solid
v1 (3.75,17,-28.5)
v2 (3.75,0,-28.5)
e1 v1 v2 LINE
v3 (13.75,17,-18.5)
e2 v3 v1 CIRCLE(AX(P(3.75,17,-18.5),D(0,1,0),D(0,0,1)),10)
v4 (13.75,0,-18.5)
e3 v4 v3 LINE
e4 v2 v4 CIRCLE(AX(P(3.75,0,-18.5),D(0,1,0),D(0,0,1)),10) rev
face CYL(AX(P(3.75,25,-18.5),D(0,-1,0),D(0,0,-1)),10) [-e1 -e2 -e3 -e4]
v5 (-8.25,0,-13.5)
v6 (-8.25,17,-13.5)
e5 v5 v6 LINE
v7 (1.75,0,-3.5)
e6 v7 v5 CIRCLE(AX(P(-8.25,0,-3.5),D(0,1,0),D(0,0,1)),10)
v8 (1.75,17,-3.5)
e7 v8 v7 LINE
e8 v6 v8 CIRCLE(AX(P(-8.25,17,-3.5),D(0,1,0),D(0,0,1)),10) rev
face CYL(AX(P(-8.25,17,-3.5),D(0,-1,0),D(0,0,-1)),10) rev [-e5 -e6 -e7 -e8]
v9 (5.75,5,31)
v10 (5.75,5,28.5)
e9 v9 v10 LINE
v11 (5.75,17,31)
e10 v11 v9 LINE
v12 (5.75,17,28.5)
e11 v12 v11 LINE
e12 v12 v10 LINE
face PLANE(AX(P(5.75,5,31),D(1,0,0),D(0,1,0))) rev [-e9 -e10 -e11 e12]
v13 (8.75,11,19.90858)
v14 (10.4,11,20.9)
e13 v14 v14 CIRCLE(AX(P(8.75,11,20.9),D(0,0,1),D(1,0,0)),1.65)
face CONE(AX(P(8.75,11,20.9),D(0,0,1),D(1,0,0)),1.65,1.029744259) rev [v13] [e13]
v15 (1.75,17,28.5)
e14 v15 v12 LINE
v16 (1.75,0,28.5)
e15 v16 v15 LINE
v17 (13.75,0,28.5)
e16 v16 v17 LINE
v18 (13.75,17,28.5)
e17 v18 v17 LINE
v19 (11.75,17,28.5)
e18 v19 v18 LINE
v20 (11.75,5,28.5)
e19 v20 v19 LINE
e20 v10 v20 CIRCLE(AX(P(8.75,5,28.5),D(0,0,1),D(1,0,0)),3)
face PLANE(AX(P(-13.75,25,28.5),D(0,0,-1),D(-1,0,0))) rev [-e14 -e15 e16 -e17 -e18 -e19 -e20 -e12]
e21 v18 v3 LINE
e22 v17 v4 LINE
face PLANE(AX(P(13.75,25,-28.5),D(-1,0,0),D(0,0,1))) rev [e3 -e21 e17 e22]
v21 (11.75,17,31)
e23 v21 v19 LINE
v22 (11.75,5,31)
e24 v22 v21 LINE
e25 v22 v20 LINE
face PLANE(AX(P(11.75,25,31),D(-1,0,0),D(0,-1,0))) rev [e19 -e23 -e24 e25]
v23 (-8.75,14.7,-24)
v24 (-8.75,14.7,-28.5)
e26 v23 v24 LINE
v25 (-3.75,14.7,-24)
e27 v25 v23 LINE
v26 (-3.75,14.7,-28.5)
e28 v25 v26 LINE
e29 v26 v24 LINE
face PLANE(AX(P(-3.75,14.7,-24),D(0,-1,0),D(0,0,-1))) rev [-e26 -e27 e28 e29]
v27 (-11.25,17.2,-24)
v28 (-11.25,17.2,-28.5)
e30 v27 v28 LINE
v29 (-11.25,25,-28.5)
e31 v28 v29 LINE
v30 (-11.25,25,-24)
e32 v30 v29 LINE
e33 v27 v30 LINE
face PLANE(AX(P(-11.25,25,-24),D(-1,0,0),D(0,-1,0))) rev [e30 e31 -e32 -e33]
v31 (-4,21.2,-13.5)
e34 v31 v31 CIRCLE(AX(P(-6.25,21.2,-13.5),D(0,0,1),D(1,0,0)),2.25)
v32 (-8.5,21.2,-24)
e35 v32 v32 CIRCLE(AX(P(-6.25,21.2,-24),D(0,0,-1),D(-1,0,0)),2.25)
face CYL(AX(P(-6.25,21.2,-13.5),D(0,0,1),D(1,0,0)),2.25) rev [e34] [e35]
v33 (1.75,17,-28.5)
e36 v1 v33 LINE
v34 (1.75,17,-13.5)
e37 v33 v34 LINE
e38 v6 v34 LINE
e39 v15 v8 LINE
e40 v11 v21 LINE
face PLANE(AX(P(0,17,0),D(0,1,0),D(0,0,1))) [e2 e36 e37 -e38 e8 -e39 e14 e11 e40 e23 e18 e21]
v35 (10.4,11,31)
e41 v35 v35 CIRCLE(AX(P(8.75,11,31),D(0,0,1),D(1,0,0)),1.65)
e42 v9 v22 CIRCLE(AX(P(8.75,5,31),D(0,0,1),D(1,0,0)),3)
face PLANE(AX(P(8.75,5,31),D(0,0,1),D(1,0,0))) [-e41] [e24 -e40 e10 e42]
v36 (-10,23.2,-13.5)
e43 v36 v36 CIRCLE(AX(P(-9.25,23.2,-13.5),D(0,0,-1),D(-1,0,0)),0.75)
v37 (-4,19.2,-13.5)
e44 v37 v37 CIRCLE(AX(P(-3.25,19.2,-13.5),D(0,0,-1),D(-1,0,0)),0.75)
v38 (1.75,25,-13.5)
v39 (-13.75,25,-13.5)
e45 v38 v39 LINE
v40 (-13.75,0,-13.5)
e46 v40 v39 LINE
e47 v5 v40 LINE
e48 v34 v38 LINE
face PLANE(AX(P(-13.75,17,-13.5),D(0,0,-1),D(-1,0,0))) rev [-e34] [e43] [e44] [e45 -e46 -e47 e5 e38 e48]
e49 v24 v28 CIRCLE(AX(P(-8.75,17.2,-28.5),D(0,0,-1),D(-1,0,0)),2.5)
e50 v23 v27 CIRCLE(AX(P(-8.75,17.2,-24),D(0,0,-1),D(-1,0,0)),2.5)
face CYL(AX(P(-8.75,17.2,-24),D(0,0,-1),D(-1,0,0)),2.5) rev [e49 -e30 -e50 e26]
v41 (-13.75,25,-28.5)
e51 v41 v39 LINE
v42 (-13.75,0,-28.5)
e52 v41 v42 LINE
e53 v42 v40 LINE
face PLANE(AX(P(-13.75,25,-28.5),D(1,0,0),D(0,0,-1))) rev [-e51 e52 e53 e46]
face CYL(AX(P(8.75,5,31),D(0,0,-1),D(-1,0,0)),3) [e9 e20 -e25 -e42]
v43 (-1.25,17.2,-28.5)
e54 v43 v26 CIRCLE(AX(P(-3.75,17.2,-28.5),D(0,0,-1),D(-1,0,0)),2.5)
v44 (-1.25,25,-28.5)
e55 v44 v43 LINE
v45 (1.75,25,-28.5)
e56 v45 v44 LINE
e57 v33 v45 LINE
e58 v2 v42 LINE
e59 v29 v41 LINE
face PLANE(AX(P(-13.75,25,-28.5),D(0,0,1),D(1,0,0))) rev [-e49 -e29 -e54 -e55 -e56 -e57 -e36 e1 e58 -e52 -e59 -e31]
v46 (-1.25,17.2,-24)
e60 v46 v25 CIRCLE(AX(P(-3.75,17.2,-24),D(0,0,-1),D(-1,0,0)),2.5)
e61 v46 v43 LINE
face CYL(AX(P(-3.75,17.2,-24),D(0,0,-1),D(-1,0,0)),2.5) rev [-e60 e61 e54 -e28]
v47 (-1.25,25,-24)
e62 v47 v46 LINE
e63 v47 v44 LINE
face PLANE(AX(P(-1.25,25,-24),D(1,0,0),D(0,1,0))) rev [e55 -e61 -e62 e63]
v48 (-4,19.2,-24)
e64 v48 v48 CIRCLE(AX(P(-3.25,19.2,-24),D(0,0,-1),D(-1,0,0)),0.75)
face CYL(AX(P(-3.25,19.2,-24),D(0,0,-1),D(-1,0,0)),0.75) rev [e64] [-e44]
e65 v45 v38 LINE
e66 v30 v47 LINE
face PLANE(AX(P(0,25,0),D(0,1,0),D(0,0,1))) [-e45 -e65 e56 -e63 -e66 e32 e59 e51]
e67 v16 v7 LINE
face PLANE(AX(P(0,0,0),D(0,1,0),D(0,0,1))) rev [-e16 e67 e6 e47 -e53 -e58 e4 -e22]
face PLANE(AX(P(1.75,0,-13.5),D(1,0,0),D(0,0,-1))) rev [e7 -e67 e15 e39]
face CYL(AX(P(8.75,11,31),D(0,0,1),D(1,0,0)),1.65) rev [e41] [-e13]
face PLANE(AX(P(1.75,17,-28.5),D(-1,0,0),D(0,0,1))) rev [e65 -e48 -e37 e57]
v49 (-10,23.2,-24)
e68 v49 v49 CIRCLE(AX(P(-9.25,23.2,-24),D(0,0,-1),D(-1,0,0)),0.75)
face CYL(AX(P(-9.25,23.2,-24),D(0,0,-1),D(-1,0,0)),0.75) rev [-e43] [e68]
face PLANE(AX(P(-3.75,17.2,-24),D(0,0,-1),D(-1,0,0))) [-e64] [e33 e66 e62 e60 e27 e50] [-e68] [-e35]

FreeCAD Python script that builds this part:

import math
import FreeCAD as App
import Part
import Sketcher


def edges_at(feature, points):
    """Names of the edges that pass closest to the given points."""
    edges = feature.Shape.Edges
    near = lambda p: min(range(len(edges)), key=lambda i: edges[i].distToShape(Part.Vertex(*p))[0])
    return sorted({f"Edge{near(p) + 1}" for p in points})

doc = App.newDocument("Part")
body = doc.addObject("PartDesign::Body", "Body")

sketch1 = body.newObject("Sketcher::SketchObject", "Sketch")
sketch1.AttachmentSupport = (doc.getObject("XZ_Plane"), [""])
sketch1.MapMode = "FlatFace"
sketch1.addGeometry(Part.LineSegment(App.Vector(-14, -28, 0), App.Vector(-14, 28, 0)), False)
sketch1.addGeometry(Part.LineSegment(App.Vector(-14, 28, 0), App.Vector(14, 28, 0)), False)
sketch1.addGeometry(Part.LineSegment(App.Vector(14, 28, 0), App.Vector(14, -28, 0)), False)
sketch1.addGeometry(Part.LineSegment(App.Vector(14, -28, 0), App.Vector(-14, -28, 0)), False)
sketch1.addConstraint(Sketcher.Constraint("Coincident", 0, 2, 1, 1))
sketch1.addConstraint(Sketcher.Constraint("Coincident", 1, 2, 2, 1))
sketch1.addConstraint(Sketcher.Constraint("Coincident", 2, 2, 3, 1))
sketch1.addConstraint(Sketcher.Constraint("Coincident", 3, 2, 0, 1))
sketch1.addConstraint(Sketcher.Constraint("Vertical", 0))
sketch1.addConstraint(Sketcher.Constraint("Horizontal", 1))
sketch1.addConstraint(Sketcher.Constraint("Vertical", 2))
sketch1.addConstraint(Sketcher.Constraint("Horizontal", 3))
sketch1.addConstraint(Sketcher.Constraint("Symmetric", 0, 2, 2, 2, -1, 1))
sketch1.addConstraint(Sketcher.Constraint("DistanceY", 0, 1, 0, 2, 57.0))
sketch1.addConstraint(Sketcher.Constraint("DistanceX", 1, 1, 1, 2, 27.5))
pad1 = body.newObject("PartDesign::Pad", "Pad")
pad1.Profile = sketch1
pad1.Length = 25
pad1.Reversed = True

sketch2 = body.newObject("Sketcher::SketchObject", "Sketch001")
sketch2.AttachmentSupport = (doc.getObject("XY_Plane"), [""])
sketch2.MapMode = "FlatFace"
sketch2.AttachmentOffset = App.Placement(App.Vector(0, 0, 28.5), App.Rotation())
sketch2.addGeometry(Part.LineSegment(App.Vector(5.8, 25, 0), App.Vector(5.8, 5, 0)), False)
sketch2.addGeometry(Part.ArcOfCircle(Part.Circle(App.Vector(8.8, 5, 0), App.Vector(0, 0, 1), 3), math.radians(180), math.radians(360)), False)
sketch2.addGeometry(Part.LineSegment(App.Vector(11.8, 5, 0), App.Vector(11.8, 25, 0)), False)
sketch2.addGeometry(Part.LineSegment(App.Vector(11.8, 25, 0), App.Vector(5.8, 25, 0)), False)
sketch2.addConstraint(Sketcher.Constraint("Tangent", 0, 2, 1, 1))
sketch2.addConstraint(Sketcher.Constraint("Tangent", 1, 2, 2, 1))
sketch2.addConstraint(Sketcher.Constraint("Coincident", 2, 2, 3, 1))
sketch2.addConstraint(Sketcher.Constraint("Coincident", 3, 2, 0, 1))
sketch2.addConstraint(Sketcher.Constraint("Vertical", 0))
sketch2.addConstraint(Sketcher.Constraint("Vertical", 2))
sketch2.addConstraint(Sketcher.Constraint("Horizontal", 3))
sketch2.addConstraint(Sketcher.Constraint("Radius", 1, 3.0))
sketch2.addConstraint(Sketcher.Constraint("DistanceY", 0, 2, 0, 1, 20.0))
sketch2.addConstraint(Sketcher.Constraint("DistanceY", -1, 1, 1, 3, 5.0))
sketch2.addConstraint(Sketcher.Constraint("DistanceX", -1, 1, 1, 3, 8.75))
pad2 = body.newObject("PartDesign::Pad", "Pad001")
pad2.Profile = sketch2
pad2.Length = 2.5

sketch3 = body.newObject("Sketcher::SketchObject", "Sketch002")
sketch3.AttachmentSupport = (doc.getObject("XY_Plane"), [""])
sketch3.MapMode = "FlatFace"
sketch3.AttachmentOffset = App.Placement(App.Vector(0, 0, -28.5), App.Rotation())
sketch3.addGeometry(Part.LineSegment(App.Vector(-11.2, 25, 0), App.Vector(-1.2, 25, 0)), False)
sketch3.addGeometry(Part.LineSegment(App.Vector(-1.2, 25, 0), App.Vector(-1.2, 17.2, 0)), False)
sketch3.addGeometry(Part.ArcOfCircle(Part.Circle(App.Vector(-3.8, 17.2, 0), App.Vector(0, 0, 1), 2.5), math.radians(-90), math.radians(0)), False)
sketch3.addGeometry(Part.LineSegment(App.Vector(-3.8, 14.7, 0), App.Vector(-8.8, 14.7, 0)), False)
sketch3.addGeometry(Part.ArcOfCircle(Part.Circle(App.Vector(-8.8, 17.2, 0), App.Vector(0, 0, 1), 2.5), math.radians(180), math.radians(270)), False)
sketch3.addGeometry(Part.LineSegment(App.Vector(-11.2, 17.2, 0), App.Vector(-11.2, 25, 0)), False)
sketch3.addConstraint(Sketcher.Constraint("Coincident", 0, 2, 1, 1))
sketch3.addConstraint(Sketcher.Constraint("Tangent", 1, 2, 2, 2))
sketch3.addConstraint(Sketcher.Constraint("Tangent", 2, 1, 3, 1))
sketch3.addConstraint(Sketcher.Constraint("Tangent", 3, 2, 4, 2))
sketch3.addConstraint(Sketcher.Constraint("Tangent", 4, 1, 5, 1))
sketch3.addConstraint(Sketcher.Constraint("Coincident", 5, 2, 0, 1))
sketch3.addConstraint(Sketcher.Constraint("Horizontal", 0))
sketch3.addConstraint(Sketcher.Constraint("Vertical", 1))
sketch3.addConstraint(Sketcher.Constraint("Horizontal", 3))
sketch3.addConstraint(Sketcher.Constraint("Vertical", 5))
sketch3.addConstraint(Sketcher.Constraint("Equal", 2, 4))
sketch3.addConstraint(Sketcher.Constraint("Radius", 2, 2.5))
sketch3.addConstraint(Sketcher.Constraint("DistanceX", 0, 1, 0, 2, 10.0))
sketch3.addConstraint(Sketcher.Constraint("DistanceY", 1, 2, 1, 1, 7.8))
sketch3.addConstraint(Sketcher.Constraint("DistanceY", -1, 1, 0, 2, 25.0))
sketch3.addConstraint(Sketcher.Constraint("DistanceX", 2, 3, -1, 1, 3.75))
pocket1 = body.newObject("PartDesign::Pocket", "Pocket")
pocket1.Profile = sketch3
pocket1.Length = 4.5
pocket1.Reversed = True

sketch4 = body.newObject("Sketcher::SketchObject", "Sketch003")
sketch4.AttachmentSupport = (doc.getObject("XY_Plane"), [""])
sketch4.MapMode = "FlatFace"
sketch4.AttachmentOffset = App.Placement(App.Vector(0, 0, 31), App.Rotation())
sketch4.addGeometry(Part.Circle(App.Vector(8.8, 11, 0), App.Vector(0, 0, 1), 1.6), False)
sketch4.addConstraint(Sketcher.Constraint("Diameter", 0, 3.3))
sketch4.addConstraint(Sketcher.Constraint("DistanceY", -1, 1, 0, 3, 11.0))
sketch4.addConstraint(Sketcher.Constraint("DistanceX", -1, 1, 0, 3, 8.75))
doc.recompute()
hole = body.newObject("PartDesign::Hole", "Hole")
hole.Profile = sketch4
hole.ThreadType = "None"
hole.Diameter = 3.3
hole.DepthType = "Dimension"
hole.Depth = 10.1
hole.DrillPoint = "Angled"
hole.DrillPointAngle = 118

sketch5 = body.newObject("Sketcher::SketchObject", "Sketch004")
sketch5.AttachmentSupport = (doc.getObject("XZ_Plane"), [""])
sketch5.MapMode = "FlatFace"
sketch5.AttachmentOffset = App.Placement(App.Vector(0, 0, -25), App.Rotation())
sketch5.addGeometry(Part.LineSegment(App.Vector(1.8, -13.5, 0), App.Vector(-13.8, -13.5, 0)), False)
sketch5.addGeometry(Part.LineSegment(App.Vector(-13.8, -13.5, 0), App.Vector(-13.8, 28.5, 0)), False)
sketch5.addGeometry(Part.LineSegment(App.Vector(-13.8, 28.5, 0), App.Vector(5.8, 28.5, 0)), False)
sketch5.addGeometry(Part.LineSegment(App.Vector(5.8, 28.5, 0), App.Vector(5.8, 31, 0)), False)
sketch5.addGeometry(Part.LineSegment(App.Vector(5.8, 31, 0), App.Vector(11.8, 31, 0)), False)
sketch5.addGeometry(Part.LineSegment(App.Vector(11.8, 31, 0), App.Vector(11.8, 28.5, 0)), False)
sketch5.addGeometry(Part.LineSegment(App.Vector(11.8, 28.5, 0), App.Vector(13.8, 28.5, 0)), False)
sketch5.addGeometry(Part.LineSegment(App.Vector(13.8, 28.5, 0), App.Vector(13.8, -28.5, 0)), False)
sketch5.addGeometry(Part.LineSegment(App.Vector(13.8, -28.5, 0), App.Vector(1.8, -28.5, 0)), False)
sketch5.addGeometry(Part.LineSegment(App.Vector(1.8, -28.5, 0), App.Vector(1.8, -13.5, 0)), False)
sketch5.addConstraint(Sketcher.Constraint("Coincident", 0, 2, 1, 1))
sketch5.addConstraint(Sketcher.Constraint("Coincident", 1, 2, 2, 1))
sketch5.addConstraint(Sketcher.Constraint("Coincident", 2, 2, 3, 1))
sketch5.addConstraint(Sketcher.Constraint("Coincident", 3, 2, 4, 1))
sketch5.addConstraint(Sketcher.Constraint("Coincident", 4, 2, 5, 1))
sketch5.addConstraint(Sketcher.Constraint("Coincident", 5, 2, 6, 1))
sketch5.addConstraint(Sketcher.Constraint("Coincident", 6, 2, 7, 1))
sketch5.addConstraint(Sketcher.Constraint("Coincident", 7, 2, 8, 1))
sketch5.addConstraint(Sketcher.Constraint("Coincident", 8, 2, 9, 1))
sketch5.addConstraint(Sketcher.Constraint("Coincident", 9, 2, 0, 1))
sketch5.addConstraint(Sketcher.Constraint("Horizontal", 0))
sketch5.addConstraint(Sketcher.Constraint("Vertical", 1))
sketch5.addConstraint(Sketcher.Constraint("Horizontal", 2))
sketch5.addConstraint(Sketcher.Constraint("Vertical", 3))
sketch5.addConstraint(Sketcher.Constraint("Horizontal", 4))
sketch5.addConstraint(Sketcher.Constraint("Vertical", 5))
sketch5.addConstraint(Sketcher.Constraint("Horizontal", 6))
sketch5.addConstraint(Sketcher.Constraint("Vertical", 7))
sketch5.addConstraint(Sketcher.Constraint("Horizontal", 8))
sketch5.addConstraint(Sketcher.Constraint("Vertical", 9))
sketch5.addConstraint(Sketcher.Constraint("Symmetric", 1, 2, 7, 2, -1, 1))
sketch5.addConstraint(Sketcher.Constraint("Horizontal", 2, 2, 5, 2))
sketch5.addConstraint(Sketcher.Constraint("DistanceX", 4, 1, 4, 2, 6.0))
sketch5.addConstraint(Sketcher.Constraint("DistanceX", 6, 1, 6, 2, 2.0))
sketch5.addConstraint(Sketcher.Constraint("DistanceX", 8, 2, 8, 1, 12.0))
sketch5.addConstraint(Sketcher.Constraint("DistanceY", 1, 1, 1, 2, 42.0))
sketch5.addConstraint(Sketcher.Constraint("DistanceY", 7, 2, 7, 1, 57.0))
sketch5.addConstraint(Sketcher.Constraint("DistanceX", 0, 2, 0, 1, 15.5))
sketch5.addConstraint(Sketcher.Constraint("DistanceY", 3, 1, 3, 2, 2.5))
pocket2 = body.newObject("PartDesign::Pocket", "Pocket001")
pocket2.Profile = sketch5
pocket2.Length = 8
pocket2.Reversed = True

sketch6 = body.newObject("Sketcher::SketchObject", "Sketch005")
sketch6.AttachmentSupport = (doc.getObject("XY_Plane"), [""])
sketch6.MapMode = "FlatFace"
sketch6.AttachmentOffset = App.Placement(App.Vector(0, 0, -13.5), App.Rotation())
sketch6.addGeometry(Part.Circle(App.Vector(-6.2, 21.2, 0), App.Vector(0, 0, 1), 2.2), False)
sketch6.addConstraint(Sketcher.Constraint("Diameter", 0, 4.5))
sketch6.addConstraint(Sketcher.Constraint("DistanceY", -1, 1, 0, 3, 21.2))
sketch6.addConstraint(Sketcher.Constraint("DistanceX", 0, 3, -1, 1, 6.25))
doc.recompute()
hole2 = body.newObject("PartDesign::Hole", "Hole001")
hole2.Profile = sketch6
hole2.ThreadType = "None"
hole2.Diameter = 4.5
hole2.DepthType = "ThroughAll"

sketch7 = body.newObject("Sketcher::SketchObject", "Sketch006")
sketch7.AttachmentSupport = (doc.getObject("XY_Plane"), [""])
sketch7.MapMode = "FlatFace"
sketch7.AttachmentOffset = App.Placement(App.Vector(0, 0, -24), App.Rotation())
sketch7.addGeometry(Part.Circle(App.Vector(-9.2, 23.2, 0), App.Vector(0, 0, 1), 0.8), False)
sketch7.addGeometry(Part.Circle(App.Vector(-3.2, 19.2, 0), App.Vector(0, 0, 1), 0.8), False)
sketch7.addConstraint(Sketcher.Constraint("Equal", 0, 1))
sketch7.addConstraint(Sketcher.Constraint("Diameter", 0, 1.5))
sketch7.addConstraint(Sketcher.Constraint("DistanceX", 0, 3, 1, 3, 6.0))
sketch7.addConstraint(Sketcher.Constraint("DistanceY", 1, 3, 0, 3, 4.0))
sketch7.addConstraint(Sketcher.Constraint("DistanceY", -1, 1, 0, 3, 23.2))
sketch7.addConstraint(Sketcher.Constraint("DistanceX", 0, 3, -1, 1, 9.25))
doc.recompute()
hole3 = body.newObject("PartDesign::Hole", "Hole002")
hole3.Profile = sketch7
hole3.ThreadType = "None"
hole3.Diameter = 1.5
hole3.DepthType = "ThroughAll"
hole3.Reversed = True

sketch8 = body.newObject("Sketcher::SketchObject", "Sketch007")
sketch8.AttachmentSupport = (doc.getObject("XZ_Plane"), [""])
sketch8.MapMode = "FlatFace"
sketch8.AttachmentOffset = App.Placement(App.Vector(0, 0, -17), App.Rotation())
sketch8.addGeometry(Part.LineSegment(App.Vector(-14, -14, 0), App.Vector(-14, 28, 0)), False)
sketch8.addGeometry(Part.LineSegment(App.Vector(-14, 28, 0), App.Vector(2, 28, 0)), False)
sketch8.addGeometry(Part.LineSegment(App.Vector(2, 28, 0), App.Vector(2, -14, 0)), False)
sketch8.addGeometry(Part.LineSegment(App.Vector(2, -14, 0), App.Vector(-14, -14, 0)), False)
sketch8.addConstraint(Sketcher.Constraint("Coincident", 0, 2, 1, 1))
sketch8.addConstraint(Sketcher.Constraint("Coincident", 1, 2, 2, 1))
sketch8.addConstraint(Sketcher.Constraint("Coincident", 2, 2, 3, 1))
sketch8.addConstraint(Sketcher.Constraint("Coincident", 3, 2, 0, 1))
sketch8.addConstraint(Sketcher.Constraint("Vertical", 0))
sketch8.addConstraint(Sketcher.Constraint("Horizontal", 1))
sketch8.addConstraint(Sketcher.Constraint("Vertical", 2))
sketch8.addConstraint(Sketcher.Constraint("Horizontal", 3))
sketch8.addConstraint(Sketcher.Constraint("DistanceY", 0, 1, 0, 2, 42.0))
sketch8.addConstraint(Sketcher.Constraint("DistanceX", 1, 1, 1, 2, 15.5))
sketch8.addConstraint(Sketcher.Constraint("DistanceY", -1, 1, 0, 2, 28.5))
sketch8.addConstraint(Sketcher.Constraint("DistanceX", 0, 2, -1, 1, 13.75))
pocket3 = body.newObject("PartDesign::Pocket", "Pocket002")
pocket3.Profile = sketch8
pocket3.Type = "ThroughAll"
pocket3.Reversed = True
doc.recompute()

fillet = body.newObject("PartDesign::Fillet", "Fillet")
fillet.Base = (pocket3, edges_at(pocket3, [(1.75, 8.5, -13.5), (13.75, 8.5, -28.5)]))
fillet.Radius = 10

doc.recompute()
